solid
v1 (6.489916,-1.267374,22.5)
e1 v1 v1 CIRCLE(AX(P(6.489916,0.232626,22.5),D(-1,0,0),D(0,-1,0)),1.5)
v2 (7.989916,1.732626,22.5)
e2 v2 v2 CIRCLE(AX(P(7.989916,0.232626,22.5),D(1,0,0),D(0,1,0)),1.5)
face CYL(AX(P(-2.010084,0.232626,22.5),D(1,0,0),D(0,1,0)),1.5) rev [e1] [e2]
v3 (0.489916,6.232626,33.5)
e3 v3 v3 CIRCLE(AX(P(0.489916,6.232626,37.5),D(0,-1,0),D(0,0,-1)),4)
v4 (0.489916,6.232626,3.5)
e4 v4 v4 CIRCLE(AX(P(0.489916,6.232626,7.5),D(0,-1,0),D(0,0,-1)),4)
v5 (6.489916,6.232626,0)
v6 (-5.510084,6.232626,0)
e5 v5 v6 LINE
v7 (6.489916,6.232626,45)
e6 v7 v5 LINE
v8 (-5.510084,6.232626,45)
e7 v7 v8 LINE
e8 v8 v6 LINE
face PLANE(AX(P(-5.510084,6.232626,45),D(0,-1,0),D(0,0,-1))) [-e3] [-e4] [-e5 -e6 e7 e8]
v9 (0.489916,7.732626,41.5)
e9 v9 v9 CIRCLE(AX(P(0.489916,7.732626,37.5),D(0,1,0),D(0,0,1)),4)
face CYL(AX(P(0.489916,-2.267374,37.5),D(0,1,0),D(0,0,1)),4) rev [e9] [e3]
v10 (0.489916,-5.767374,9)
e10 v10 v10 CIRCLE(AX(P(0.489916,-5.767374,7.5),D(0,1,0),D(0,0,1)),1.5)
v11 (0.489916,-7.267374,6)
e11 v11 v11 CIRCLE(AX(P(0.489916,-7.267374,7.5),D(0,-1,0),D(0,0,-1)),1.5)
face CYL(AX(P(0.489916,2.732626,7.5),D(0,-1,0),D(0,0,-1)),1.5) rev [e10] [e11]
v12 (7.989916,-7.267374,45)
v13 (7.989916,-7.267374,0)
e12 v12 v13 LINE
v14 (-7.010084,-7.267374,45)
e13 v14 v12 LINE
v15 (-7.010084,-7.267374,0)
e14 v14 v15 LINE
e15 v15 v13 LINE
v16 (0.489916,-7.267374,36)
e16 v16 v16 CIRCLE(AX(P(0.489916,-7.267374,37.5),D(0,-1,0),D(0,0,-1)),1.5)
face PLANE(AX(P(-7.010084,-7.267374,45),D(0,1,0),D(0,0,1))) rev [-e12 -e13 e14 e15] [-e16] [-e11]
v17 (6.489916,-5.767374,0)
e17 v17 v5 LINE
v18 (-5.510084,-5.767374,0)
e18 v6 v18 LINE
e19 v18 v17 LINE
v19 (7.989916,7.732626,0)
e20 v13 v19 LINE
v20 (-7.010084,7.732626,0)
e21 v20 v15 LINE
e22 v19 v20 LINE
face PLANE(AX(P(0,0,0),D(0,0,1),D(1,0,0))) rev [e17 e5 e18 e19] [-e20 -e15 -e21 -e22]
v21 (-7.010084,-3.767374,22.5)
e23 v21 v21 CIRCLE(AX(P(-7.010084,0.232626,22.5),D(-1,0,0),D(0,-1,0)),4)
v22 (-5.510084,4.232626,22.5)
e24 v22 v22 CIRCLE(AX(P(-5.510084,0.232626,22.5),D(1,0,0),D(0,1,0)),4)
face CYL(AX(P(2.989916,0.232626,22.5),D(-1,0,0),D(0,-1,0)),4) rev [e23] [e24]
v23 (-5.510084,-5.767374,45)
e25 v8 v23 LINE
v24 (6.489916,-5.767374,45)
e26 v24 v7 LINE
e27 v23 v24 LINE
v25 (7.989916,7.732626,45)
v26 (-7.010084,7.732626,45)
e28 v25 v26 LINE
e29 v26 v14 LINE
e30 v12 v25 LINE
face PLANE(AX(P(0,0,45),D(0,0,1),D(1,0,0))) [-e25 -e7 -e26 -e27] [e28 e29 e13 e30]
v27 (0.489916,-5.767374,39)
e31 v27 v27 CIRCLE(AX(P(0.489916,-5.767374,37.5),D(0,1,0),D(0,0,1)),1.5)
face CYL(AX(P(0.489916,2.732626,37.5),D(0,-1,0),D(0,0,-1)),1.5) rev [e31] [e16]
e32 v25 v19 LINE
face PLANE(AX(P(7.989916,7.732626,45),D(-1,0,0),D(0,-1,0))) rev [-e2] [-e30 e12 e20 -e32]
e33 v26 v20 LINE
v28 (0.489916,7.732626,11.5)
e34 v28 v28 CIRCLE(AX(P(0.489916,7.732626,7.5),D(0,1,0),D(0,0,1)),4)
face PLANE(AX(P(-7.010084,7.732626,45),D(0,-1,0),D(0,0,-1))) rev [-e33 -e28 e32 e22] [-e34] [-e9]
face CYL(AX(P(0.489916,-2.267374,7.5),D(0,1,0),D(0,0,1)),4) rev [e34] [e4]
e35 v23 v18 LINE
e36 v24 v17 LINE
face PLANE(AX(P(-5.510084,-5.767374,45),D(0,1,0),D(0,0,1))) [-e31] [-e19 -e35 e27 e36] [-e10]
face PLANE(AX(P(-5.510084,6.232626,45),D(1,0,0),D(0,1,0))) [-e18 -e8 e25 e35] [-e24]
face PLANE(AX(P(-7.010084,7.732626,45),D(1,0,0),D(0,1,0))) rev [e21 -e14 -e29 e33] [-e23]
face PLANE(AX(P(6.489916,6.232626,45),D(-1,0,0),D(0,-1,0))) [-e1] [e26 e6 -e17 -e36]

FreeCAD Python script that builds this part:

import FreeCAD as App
import Part
import Sketcher
from FreeCAD import Vector
Q = App.Units.Quantity


def add_polygon(sketch, points):
    """Adds a closed chain of lines whose ends are joined by coincident constraints."""
    first, n = sketch.GeometryCount, len(points)
    for a, b in zip(points, points[1:] + points[:1]):
        sketch.addGeometry(Part.LineSegment(App.Vector(*a, 0), App.Vector(*b, 0)), False)
    for i in range(n):
        sketch.addConstraint(Sketcher.Constraint("Coincident", first + i, 2, first + (i + 1) % n, 1))

doc = App.newDocument("Part")
body = doc.addObject("PartDesign::Body", "Body")

sketch1 = body.newObject("Sketcher::SketchObject", "Sketch")
sketch1.AttachmentSupport = (doc.getObject("XY_Plane"), [""])
sketch1.MapMode = "FlatFace"
add_polygon(sketch1, [(-7, 8), (-7, -7), (8, -7), (8, 8)])
add_polygon(sketch1, [(6, -6), (-6, -6), (-6, 6), (6, 6)])
sketch1.addConstraint(Sketcher.Constraint("Vertical", 0))
sketch1.addConstraint(Sketcher.Constraint("Horizontal", 1))
sketch1.addConstraint(Sketcher.Constraint("Vertical", 2))
sketch1.addConstraint(Sketcher.Constraint("Horizontal", 3))
sketch1.addConstraint(Sketcher.Constraint("Horizontal", 4))
sketch1.addConstraint(Sketcher.Constraint("Vertical", 5))
sketch1.addConstraint(Sketcher.Constraint("Horizontal", 6))
sketch1.addConstraint(Sketcher.Constraint("Vertical", 7))
sketch1.addConstraint(Sketcher.Constraint("Equal", 3, 0))
sketch1.addConstraint(Sketcher.Constraint("Equal", 6, 5))
sketch1.addConstraint(Sketcher.Constraint("DistanceX", 1, 1, 1, 2, Q("15 mm")))
sketch1.addConstraint(Sketcher.Constraint("DistanceX", 4, 2, 4, 1, Q("12 mm")))
sketch1.addConstraint(Sketcher.Constraint("DistanceX", 0, 2, 4, 2, Q("1.5 mm")))
sketch1.addConstraint(Sketcher.Constraint("DistanceY", 0, 2, 4, 2, Q("1.5 mm")))
sketch1.addConstraint(Sketcher.Constraint("DistanceX", 0, 2, -1, 1, Q("7.010084 mm")))
sketch1.addConstraint(Sketcher.Constraint("DistanceY", 0, 2, -1, 1, Q("7.267374 mm")))
pad1 = body.newObject("PartDesign::Pad", "Pad")
pad1.Profile = sketch1
pad1.Length = 45

sketch2 = body.newObject("Sketcher::SketchObject", "Sketch001")
sketch2.AttachmentSupport = (doc.getObject("YZ_Plane"), [""])
sketch2.MapMode = "FlatFace"
sketch2.AttachmentOffset = App.Placement(Vector(0, 0, 7.989916), App.Rotation())
sketch2.addGeometry(Part.Circle(Vector(0.2, 22.5, 0), Vector(0, 0, 1), 1.5), False)
sketch2.addConstraint(Sketcher.Constraint("Diameter", 0, Q("3 mm")))
sketch2.addConstraint(Sketcher.Constraint("DistanceY", -1, 1, 0, 3, Q("22.5 mm")))
sketch2.addConstraint(Sketcher.Constraint("DistanceX", -1, 1, 0, 3, Q("0.232626 mm")))
pocket1 = body.newObject("PartDesign::Pocket", "Pocket")
pocket1.Profile = sketch2
pocket1.Length = 10

sketch3 = body.newObject("Sketcher::SketchObject", "Sketch002")
sketch3.AttachmentSupport = (doc.getObject("XZ_Plane"), [""])
sketch3.MapMode = "FlatFace"
sketch3.AttachmentOffset = App.Placement(Vector(0, 0, 7.267374), App.Rotation())
sketch3.addGeometry(Part.Circle(Vector(0.5, 37.5, 0), Vector(0, 0, 1), 1.5), False)
sketch3.addGeometry(Part.Circle(Vector(0.5, 7.5, 0), Vector(0, 0, 1), 1.5), False)
sketch3.addConstraint(Sketcher.Constraint("Equal", 0, 1))
sketch3.addConstraint(Sketcher.Constraint("Vertical", 0, 3, 1, 3))
sketch3.addConstraint(Sketcher.Constraint("Diameter", 0, Q("3 mm")))
sketch3.addConstraint(Sketcher.Constraint("DistanceY", 1, 3, 0, 3, Q("30 mm")))
sketch3.addConstraint(Sketcher.Constraint("DistanceY", -1, 1, 0, 3, Q("37.5 mm")))
sketch3.addConstraint(Sketcher.Constraint("DistanceX", -1, 1, 0, 3, Q("0.489916 mm")))
pocket2 = body.newObject("PartDesign::Pocket", "Pocket001")
pocket2.Profile = sketch3
pocket2.Length = 10

sketch4 = body.newObject("Sketcher::SketchObject", "Sketch003")
sketch4.AttachmentSupport = (doc.getObject("YZ_Plane"), [""])
sketch4.MapMode = "FlatFace"
sketch4.AttachmentOffset = App.Placement(Vector(0, 0, -7.010084), App.Rotation())
sketch4.addGeometry(Part.Circle(Vector(0.2, 22.5, 0), Vector(0, 0, 1), 4), False)
sketch4.addConstraint(Sketcher.Constraint("Diameter", 0, Q("8 mm")))
sketch4.addConstraint(Sketcher.Constraint("DistanceY", -1, 1, 0, 3, Q("22.5 mm")))
sketch4.addConstraint(Sketcher.Constraint("DistanceX", -1, 1, 0, 3, Q("0.232626 mm")))
pocket3 = body.newObject("PartDesign::Pocket", "Pocket002")
pocket3.Profile = sketch4
pocket3.Length = 10
pocket3.Reversed = True

sketch5 = body.newObject("Sketcher::SketchObject", "Sketch004")
sketch5.AttachmentSupport = (doc.getObject("XZ_Plane"), [""])
sketch5.MapMode = "FlatFace"
sketch5.AttachmentOffset = App.Placement(Vector(0, 0, -7.732626), App.Rotation())
sketch5.addGeometry(Part.Circle(Vector(0.5, 7.5, 0), Vector(0, 0, 1), 4), False)
sketch5.addGeometry(Part.Circle(Vector(0.5, 37.5, 0), Vector(0, 0, 1), 4), False)
sketch5.addConstraint(Sketcher.Constraint("Equal", 0, 1))
sketch5.addConstraint(Sketcher.Constraint("Vertical", 0, 3, 1, 3))
sketch5.addConstraint(Sketcher.Constraint("Diameter", 0, Q("8 mm")))
sketch5.addConstraint(Sketcher.Constraint("DistanceY", 0, 3, 1, 3, Q("30 mm")))
sketch5.addConstraint(Sketcher.Constraint("DistanceY", -1, 1, 0, 3, Q("7.5 mm")))
sketch5.addConstraint(Sketcher.Constraint("DistanceX", -1, 1, 0, 3, Q("0.489916 mm")))
pocket4 = body.newObject("PartDesign::Pocket", "Pocket003")
pocket4.Profile = sketch5
pocket4.Length = 10
pocket4.Reversed = True

doc.recompute()
